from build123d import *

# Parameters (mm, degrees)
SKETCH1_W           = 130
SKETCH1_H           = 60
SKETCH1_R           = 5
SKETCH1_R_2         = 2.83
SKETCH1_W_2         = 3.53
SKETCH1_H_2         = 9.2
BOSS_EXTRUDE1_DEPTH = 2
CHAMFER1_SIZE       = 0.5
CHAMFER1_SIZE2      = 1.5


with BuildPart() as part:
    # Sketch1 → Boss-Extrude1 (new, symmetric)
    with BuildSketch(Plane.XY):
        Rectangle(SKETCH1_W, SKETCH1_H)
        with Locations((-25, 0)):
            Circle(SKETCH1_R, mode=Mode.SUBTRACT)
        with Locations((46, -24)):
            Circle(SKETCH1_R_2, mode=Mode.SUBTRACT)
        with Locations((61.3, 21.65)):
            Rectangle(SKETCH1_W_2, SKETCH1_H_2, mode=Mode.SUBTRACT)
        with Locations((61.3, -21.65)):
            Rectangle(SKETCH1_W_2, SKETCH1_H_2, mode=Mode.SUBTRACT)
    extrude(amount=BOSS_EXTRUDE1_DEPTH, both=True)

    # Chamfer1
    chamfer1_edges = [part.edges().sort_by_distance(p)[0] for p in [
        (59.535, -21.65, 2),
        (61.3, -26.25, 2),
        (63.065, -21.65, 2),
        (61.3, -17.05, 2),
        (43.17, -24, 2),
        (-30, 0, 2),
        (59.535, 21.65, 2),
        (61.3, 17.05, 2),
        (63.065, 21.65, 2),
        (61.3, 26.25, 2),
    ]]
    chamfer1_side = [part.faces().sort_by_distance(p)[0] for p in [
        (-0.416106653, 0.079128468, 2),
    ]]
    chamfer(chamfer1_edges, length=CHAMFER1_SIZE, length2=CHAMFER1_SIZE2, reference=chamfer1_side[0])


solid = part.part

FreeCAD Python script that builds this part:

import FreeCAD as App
import Part
import Sketcher
from FreeCAD import Vector
Q = App.Units.Quantity


def edges_at(feature, points):
    """Names of the edges that pass closest to the given points."""
    edges = feature.Shape.Edges
    near = lambda p: min(range(len(edges)), key=lambda i: edges[i].distToShape(Part.Vertex(*p))[0])
    return sorted({f"Edge{near(p) + 1}" for p in points})

doc = App.newDocument("Part")
body = doc.addObject("PartDesign::Body", "Body")

# Sketch on XY plane
sketch1 = body.newObject("Sketcher::SketchObject", "Sketch")
sketch1.AttachmentSupport = (doc.getObject("XY_Plane"), [""])
sketch1.MapMode = "FlatFace"
sketch1.addGeometry(Part.LineSegment(Vector(-65, 30, 0), Vector(-65, -30, 0)), False)
sketch1.addGeometry(Part.LineSegment(Vector(-65, -30, 0), Vector(65, -30, 0)), False)
sketch1.addGeometry(Part.LineSegment(Vector(65, -30, 0), Vector(65, 30, 0)), False)
sketch1.addGeometry(Part.LineSegment(Vector(65, 30, 0), Vector(-65, 30, 0)), False)
sketch1.addGeometry(Part.Circle(Vector(46, -24, 0), Vector(0, 0, 1), 2.83), False)
sketch1.addGeometry(Part.LineSegment(Vector(63.065, -26.25, 0), Vector(59.535, -26.25, 0)), False)
sketch1.addGeometry(Part.LineSegment(Vector(59.535, -26.25, 0), Vector(59.535, -17.05, 0)), False)
sketch1.addGeometry(Part.LineSegment(Vector(59.535, -17.05, 0), Vector(63.065, -17.05, 0)), False)
sketch1.addGeometry(Part.LineSegment(Vector(63.065, -17.05, 0), Vector(63.065, -26.25, 0)), False)
sketch1.addGeometry(Part.Circle(Vector(-25, 0, 0), Vector(0, 0, 1), 5), False)
sketch1.addGeometry(Part.LineSegment(Vector(63.065, 17.05, 0), Vector(59.535, 17.05, 0)), False)
sketch1.addGeometry(Part.LineSegment(Vector(59.535, 17.05, 0), Vector(59.535, 26.25, 0)), False)
sketch1.addGeometry(Part.LineSegment(Vector(59.535, 26.25, 0), Vector(63.065, 26.25, 0)), False)
sketch1.addGeometry(Part.LineSegment(Vector(63.065, 26.25, 0), Vector(63.065, 17.05, 0)), False)
sketch1.addConstraint(Sketcher.Constraint("Coincident", 0, 2, 1, 1))
sketch1.addConstraint(Sketcher.Constraint("Coincident", 1, 2, 2, 1))
sketch1.addConstraint(Sketcher.Constraint("Coincident", 2, 2, 3, 1))
sketch1.addConstraint(Sketcher.Constraint("Coincident", 3, 2, 0, 1))
sketch1.addConstraint(Sketcher.Constraint("Coincident", 5, 2, 6, 1))
sketch1.addConstraint(Sketcher.Constraint("Coincident", 6, 2, 7, 1))
sketch1.addConstraint(Sketcher.Constraint("Coincident", 7, 2, 8, 1))
sketch1.addConstraint(Sketcher.Constraint("Coincident", 8, 2, 5, 1))
sketch1.addConstraint(Sketcher.Constraint("Coincident", 10, 2, 11, 1))
sketch1.addConstraint(Sketcher.Constraint("Coincident", 11, 2, 12, 1))
sketch1.addConstraint(Sketcher.Constraint("Coincident", 12, 2, 13, 1))
sketch1.addConstraint(Sketcher.Constraint("Coincident", 13, 2, 10, 1))
sketch1.addConstraint(Sketcher.Constraint("Vertical", 0))
sketch1.addConstraint(Sketcher.Constraint("Horizontal", 1))
sketch1.addConstraint(Sketcher.Constraint("Vertical", 2))
sketch1.addConstraint(Sketcher.Constraint("Horizontal", 3))
sketch1.addConstraint(Sketcher.Constraint("Horizontal", 5))
sketch1.addConstraint(Sketcher.Constraint("Vertical", 6))
sketch1.addConstraint(Sketcher.Constraint("Horizontal", 7))
sketch1.addConstraint(Sketcher.Constraint("Vertical", 8))
sketch1.addConstraint(Sketcher.Constraint("Horizontal", 10))
sketch1.addConstraint(Sketcher.Constraint("Vertical", 11))
sketch1.addConstraint(Sketcher.Constraint("Horizontal", 12))
sketch1.addConstraint(Sketcher.Constraint("Vertical", 13))
sketch1.addConstraint(Sketcher.Constraint("Symmetric", 0, 2, 2, 2, -1, 1))
sketch1.addConstraint(Sketcher.Constraint("Symmetric", 6, 2, 10, 2, -1))
sketch1.addConstraint(Sketcher.Constraint("Symmetric", 8, 2, 12, 2, -1))
sketch1.addConstraint(Sketcher.Constraint("PointOnObject", 9, 3, -1))
sketch1.addConstraint(Sketcher.Constraint("Diameter", 9, Q("10 mm")))
sketch1.addConstraint(Sketcher.Constraint("Diameter", 4, Q("5.66 mm")))
sketch1.addConstraint(Sketcher.Constraint("DistanceX", 1, 1, 1, 2, Q("130 mm")))
sketch1.addConstraint(Sketcher.Constraint("DistanceY", 0, 2, 0, 1, Q("60 mm")))
sketch1.addConstraint(Sketcher.Constraint("DistanceY", 6, 1, 6, 2, Q("9.2 mm")))
sketch1.addConstraint(Sketcher.Constraint("DistanceX", -1, 1, 4, 3, Q("46 mm")))
sketch1.addConstraint(Sketcher.Constraint("DistanceY", 4, 3, -1, 1, Q("24 mm")))
sketch1.addConstraint(Sketcher.Constraint("DistanceX", 9, 3, -1, 1, Q("25 mm")))
sketch1.addConstraint(Sketcher.Constraint("DistanceX", 5, 2, 5, 1, Q("3.53 mm")))
sketch1.addConstraint(Sketcher.Constraint("DistanceY", 6, 2, 10, 2, Q("34.1 mm")))
sketch1.addConstraint(Sketcher.Constraint("DistanceX", -1, 1, 5, 2, Q("59.535 mm")))
pad1 = body.newObject("PartDesign::Pad", "Pad")
pad1.Profile = sketch1
pad1.Length = 4
pad1.Midplane = True
doc.recompute()

chamfer = body.newObject("PartDesign::Chamfer", "Chamfer")
chamfer.Base = (pad1, edges_at(pad1, [
    (59.535, -21.65, 2),
    (61.3, -26.25, 2),
    (63.065, -21.65, 2),
    (61.3, -17.05, 2),
    (43.17, -24, 2),
    (-30, 0, 2),
    (59.535, 21.65, 2),
    (61.3, 17.05, 2),
    (63.065, 21.65, 2),
    (61.3, 26.25, 2),
]))
chamfer.ChamferType = "Two distances"
chamfer.Size = 0.5
chamfer.Size2 = 1.5
chamfer.FlipDirection = True

doc.recompute()
